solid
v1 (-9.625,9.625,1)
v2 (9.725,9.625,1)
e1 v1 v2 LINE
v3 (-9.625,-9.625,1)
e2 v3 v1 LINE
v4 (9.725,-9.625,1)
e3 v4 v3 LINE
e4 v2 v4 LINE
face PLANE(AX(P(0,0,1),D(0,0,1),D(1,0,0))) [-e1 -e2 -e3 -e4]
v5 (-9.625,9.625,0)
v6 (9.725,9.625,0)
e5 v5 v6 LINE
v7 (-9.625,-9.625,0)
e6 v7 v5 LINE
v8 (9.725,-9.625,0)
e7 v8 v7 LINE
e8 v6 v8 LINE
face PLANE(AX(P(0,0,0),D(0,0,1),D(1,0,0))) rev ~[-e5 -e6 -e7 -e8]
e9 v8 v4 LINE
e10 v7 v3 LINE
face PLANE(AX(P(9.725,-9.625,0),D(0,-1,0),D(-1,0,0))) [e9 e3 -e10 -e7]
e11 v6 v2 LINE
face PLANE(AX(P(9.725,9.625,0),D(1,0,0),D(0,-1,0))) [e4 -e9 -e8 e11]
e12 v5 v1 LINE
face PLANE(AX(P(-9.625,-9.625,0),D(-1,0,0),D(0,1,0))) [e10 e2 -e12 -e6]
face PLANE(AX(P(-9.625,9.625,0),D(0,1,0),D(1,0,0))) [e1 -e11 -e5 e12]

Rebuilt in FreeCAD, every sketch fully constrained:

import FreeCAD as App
import Part
import Sketcher
from FreeCAD import Vector

doc = App.newDocument("Part")
params = doc.addObject("Spreadsheet::Sheet", "Params")
for row, (alias, value) in enumerate([
    ("sketch1_width", "19.35 mm"),
    ("sketch1_height", "19.25 mm"),
    ("pad1_length", "1 mm"),
], start=1):
    params.set(f"A{row}", alias)
    params.set(f"B{row}", "=" + value)
    params.setAlias(f"B{row}", alias)

body = doc.addObject("PartDesign::Body", "Body")

# Sketch on XY plane
sketch1 = doc.addObject("Sketcher::SketchObject", "Sketch")
body.addObject(sketch1)
sketch1.AttachmentSupport = (doc.XY_Plane, [""])
sketch1.MapMode = "FlatFace"
sketch1.addGeometry([
    Part.LineSegment(Vector(-10, 10, 0), Vector(-10, -10, 0)),
    Part.LineSegment(Vector(-10, -10, 0), Vector(10, -10, 0)),
    Part.LineSegment(Vector(10, -10, 0), Vector(10, 10, 0)),
    Part.LineSegment(Vector(10, 10, 0), Vector(-10, 10, 0)),
], False)
sketch1.addConstraint([
    Sketcher.Constraint("Coincident", 0, 2, 1, 1),
    Sketcher.Constraint("Coincident", 1, 2, 2, 1),
    Sketcher.Constraint("Coincident", 2, 2, 3, 1),
    Sketcher.Constraint("Coincident", 3, 2, 0, 1),
    Sketcher.Constraint("Vertical", 0),
    Sketcher.Constraint("Horizontal", 1),
    Sketcher.Constraint("Vertical", 2),
    Sketcher.Constraint("Horizontal", 3),
    Sketcher.Constraint("DistanceX", 1, 1, 1, 2, 19.35),
    Sketcher.Constraint("DistanceY", 0, 2, 0, 1, 19.25),
    Sketcher.Constraint("DistanceX", 0, 2, -1, 1, 9.625),
    Sketcher.Constraint("DistanceY", 0, 2, -1, 1, 9.625),
])
sketch1.setExpression("Constraints[8]", "Params.sketch1_width")
sketch1.setExpression("Constraints[9]", "Params.sketch1_height")
pad1 = doc.addObject("PartDesign::Pad", "Pad")
body.addObject(pad1)
pad1.Profile = sketch1
pad1.setExpression("Length", "Params.pad1_length")

doc.recompute()
